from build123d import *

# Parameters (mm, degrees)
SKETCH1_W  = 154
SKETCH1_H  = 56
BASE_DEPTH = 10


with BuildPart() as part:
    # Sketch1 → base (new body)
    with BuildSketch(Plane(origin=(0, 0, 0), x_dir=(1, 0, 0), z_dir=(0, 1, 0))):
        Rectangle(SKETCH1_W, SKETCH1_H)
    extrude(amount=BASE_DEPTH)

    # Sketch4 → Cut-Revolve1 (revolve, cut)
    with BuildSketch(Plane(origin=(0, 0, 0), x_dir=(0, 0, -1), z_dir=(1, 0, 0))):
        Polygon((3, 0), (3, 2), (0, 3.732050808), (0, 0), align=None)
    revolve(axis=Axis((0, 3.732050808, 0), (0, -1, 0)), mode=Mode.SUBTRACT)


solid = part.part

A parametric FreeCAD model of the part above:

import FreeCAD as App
import Part
import Sketcher

V = App.Vector
Q = App.Units.Quantity

doc = App.newDocument("Part")
params = doc.addObject("Spreadsheet::Sheet", "Params")
for row, (alias, value) in enumerate([
    ("sketch1_width", "154 mm"),
    ("sketch1_height", "56 mm"),
    ("pad1_length", "10 mm"),
    ("sketch2_width", "2 mm"),
    ("sketch2_height", "3 mm"),
    ("groove_angle", "360 deg"),
], start=1):
    params.set(f"A{row}", alias)
    params.set(f"B{row}", "=" + value)
    params.setAlias(f"B{row}", alias)

body = doc.addObject("PartDesign::Body", "Body")

# Sketch on XZ plane
sketch1 = body.newObject("Sketcher::SketchObject", "Sketch")
sketch1.AttachmentSupport = (doc.getObject("XZ_Plane"), [""])
sketch1.MapMode = "FlatFace"
sketch1.addGeometry(Part.LineSegment(V(-77, -28, 0), V(-77, 28, 0)), False)
sketch1.addGeometry(Part.LineSegment(V(-77, 28, 0), V(77, 28, 0)), False)
sketch1.addGeometry(Part.LineSegment(V(77, 28, 0), V(77, -28, 0)), False)
sketch1.addGeometry(Part.LineSegment(V(77, -28, 0), V(-77, -28, 0)), False)
sketch1.addConstraint(Sketcher.Constraint("Coincident", 0, 2, 1, 1))
sketch1.addConstraint(Sketcher.Constraint("Coincident", 1, 2, 2, 1))
sketch1.addConstraint(Sketcher.Constraint("Coincident", 2, 2, 3, 1))
sketch1.addConstraint(Sketcher.Constraint("Coincident", 3, 2, 0, 1))
sketch1.addConstraint(Sketcher.Constraint("Vertical", 0))
sketch1.addConstraint(Sketcher.Constraint("Horizontal", 1))
sketch1.addConstraint(Sketcher.Constraint("Vertical", 2))
sketch1.addConstraint(Sketcher.Constraint("Horizontal", 3))
sketch1.addConstraint(Sketcher.Constraint("Symmetric", 0, 2, 2, 2, -1, 1))
sketch1.addConstraint(Sketcher.Constraint("DistanceX", 1, 1, 1, 2, 154.0))
sketch1.addConstraint(Sketcher.Constraint("DistanceY", 0, 1, 0, 2, 56.0))
sketch1.setExpression("Constraints[9]", "Params.sketch1_width")
sketch1.setExpression("Constraints[10]", "Params.sketch1_height")
pad1 = body.newObject("PartDesign::Pad", "Pad")
pad1.Profile = sketch1
pad1.setExpression("Length", "Params.pad1_length")
pad1.Reversed = True

# Sketch on YZ plane
sketch2 = body.newObject("Sketcher::SketchObject", "Sketch001")
sketch2.AttachmentSupport = (doc.getObject("YZ_Plane"), [""])
sketch2.MapMode = "FlatFace"
sketch2.addGeometry(Part.LineSegment(V(0, -3, 0), V(2, -3, 0)), False)
sketch2.addGeometry(Part.LineSegment(V(2, -3, 0), V(3.732051, 0, 0)), False)
sketch2.addGeometry(Part.LineSegment(V(3.732051, 0, 0), V(0, 0, 0)), False)
sketch2.addGeometry(Part.LineSegment(V(0, 0, 0), V(0, -3, 0)), False)
sketch2.addConstraint(Sketcher.Constraint("Coincident", 0, 2, 1, 1))
sketch2.addConstraint(Sketcher.Constraint("Coincident", 1, 2, 2, 1))
sketch2.addConstraint(Sketcher.Constraint("Coincident", 2, 2, 3, 1))
sketch2.addConstraint(Sketcher.Constraint("Coincident", 3, 2, 0, 1))
sketch2.addConstraint(Sketcher.Constraint("Horizontal", 0))
sketch2.addConstraint(Sketcher.Constraint("Horizontal", 2))
sketch2.addConstraint(Sketcher.Constraint("Vertical", 3))
sketch2.addConstraint(Sketcher.Constraint("Coincident", 2, 2, -1, 1))
sketch2.addConstraint(Sketcher.Constraint("DistanceX", 0, 1, 0, 2, 2.0))
sketch2.addConstraint(Sketcher.Constraint("DistanceY", 3, 2, 3, 1, 3.0))
sketch2.addConstraint(Sketcher.Constraint("Angle", 1, Q("60 deg")))
sketch2.setExpression("Constraints[8]", "Params.sketch2_width")
sketch2.setExpression("Constraints[9]", "Params.sketch2_height")
groove = body.newObject("PartDesign::Groove", "Groove")
groove.Profile = sketch2
groove.ReferenceAxis = (sketch2, ["H_Axis"])
groove.setExpression("Angle", "Params.groove_angle")

doc.recompute()
